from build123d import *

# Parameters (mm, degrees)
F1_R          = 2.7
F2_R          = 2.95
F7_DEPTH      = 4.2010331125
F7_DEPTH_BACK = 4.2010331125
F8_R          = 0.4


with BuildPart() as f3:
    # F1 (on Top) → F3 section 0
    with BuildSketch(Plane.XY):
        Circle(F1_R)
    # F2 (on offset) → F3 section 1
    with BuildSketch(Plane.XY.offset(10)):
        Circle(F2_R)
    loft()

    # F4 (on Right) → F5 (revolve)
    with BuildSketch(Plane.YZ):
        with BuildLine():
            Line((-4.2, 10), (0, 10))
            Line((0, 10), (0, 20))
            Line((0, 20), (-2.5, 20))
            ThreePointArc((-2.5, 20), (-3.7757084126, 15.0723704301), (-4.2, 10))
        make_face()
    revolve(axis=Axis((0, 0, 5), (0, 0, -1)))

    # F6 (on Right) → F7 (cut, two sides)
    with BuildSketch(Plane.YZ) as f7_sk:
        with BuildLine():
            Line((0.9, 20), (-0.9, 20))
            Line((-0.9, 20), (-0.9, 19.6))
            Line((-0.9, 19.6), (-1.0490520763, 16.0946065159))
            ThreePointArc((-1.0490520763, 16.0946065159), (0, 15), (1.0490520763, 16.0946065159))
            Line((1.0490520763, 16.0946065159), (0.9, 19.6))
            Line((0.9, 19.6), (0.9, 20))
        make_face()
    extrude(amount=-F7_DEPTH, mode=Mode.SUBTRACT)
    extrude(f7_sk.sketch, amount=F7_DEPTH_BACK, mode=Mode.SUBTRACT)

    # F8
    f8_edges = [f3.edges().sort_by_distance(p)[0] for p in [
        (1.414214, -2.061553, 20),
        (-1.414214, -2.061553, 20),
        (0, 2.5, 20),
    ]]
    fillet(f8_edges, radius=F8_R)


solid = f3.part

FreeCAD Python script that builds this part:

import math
import FreeCAD as App
import Part
import Sketcher


def edges_at(feature, points):
    """Names of the edges that pass closest to the given points."""
    edges = feature.Shape.Edges
    near = lambda p: min(range(len(edges)), key=lambda i: edges[i].distToShape(Part.Vertex(*p))[0])
    return sorted({f"Edge{near(p) + 1}" for p in points})

doc = App.newDocument("Part")
body = doc.addObject("PartDesign::Body", "Body")

sketch1 = body.newObject("Sketcher::SketchObject", "Sketch")
sketch1.AttachmentSupport = (doc.getObject("XY_Plane"), [""])
sketch1.MapMode = "FlatFace"
sketch1.addGeometry(Part.Circle(App.Vector(0, 0, 0), App.Vector(0, 0, 1), 2.7), False)
sketch1.addConstraint(Sketcher.Constraint("Coincident", 0, 3, -1, 1))
sketch1.addConstraint(Sketcher.Constraint("Diameter", 0, 5.4))

sketch2 = body.newObject("Sketcher::SketchObject", "Sketch001")
sketch2.AttachmentSupport = (doc.getObject("XY_Plane"), [""])
sketch2.MapMode = "FlatFace"
sketch2.AttachmentOffset = App.Placement(App.Vector(0, 0, 10), App.Rotation())
sketch2.addGeometry(Part.Circle(App.Vector(0, 0, 0), App.Vector(0, 0, 1), 3), False)
sketch2.addConstraint(Sketcher.Constraint("Coincident", 0, 3, -1, 1))
sketch2.addConstraint(Sketcher.Constraint("Diameter", 0, 5.9))

additiveloft = body.newObject("PartDesign::AdditiveLoft", "AdditiveLoft")
additiveloft.Profile = sketch1
additiveloft.Sections = [sketch2]

sketch3 = body.newObject("Sketcher::SketchObject", "Sketch002")
sketch3.AttachmentSupport = (doc.getObject("YZ_Plane"), [""])
sketch3.MapMode = "FlatFace"
sketch3.addGeometry(Part.LineSegment(App.Vector(-4.2, 10, 0), App.Vector(0, 10, 0)), False)
sketch3.addGeometry(Part.LineSegment(App.Vector(0, 10, 0), App.Vector(0, 20, 0)), False)
sketch3.addGeometry(Part.LineSegment(App.Vector(0, 20, 0), App.Vector(-2.5, 20, 0)), False)
sketch3.addGeometry(Part.ArcOfCircle(Part.Circle(App.Vector(25.8, 10, 0), App.Vector(0, 0, 1), 30), math.radians(160.62), math.radians(180.08)), False)
sketch3.addConstraint(Sketcher.Constraint("Coincident", 0, 2, 1, 1))
sketch3.addConstraint(Sketcher.Constraint("Coincident", 1, 2, 2, 1))
sketch3.addConstraint(Sketcher.Constraint("Coincident", 2, 2, 3, 1))
sketch3.addConstraint(Sketcher.Constraint("Coincident", 3, 2, 0, 1))
sketch3.addConstraint(Sketcher.Constraint("Horizontal", 0))
sketch3.addConstraint(Sketcher.Constraint("Vertical", 1))
sketch3.addConstraint(Sketcher.Constraint("Horizontal", 2))
sketch3.addConstraint(Sketcher.Constraint("PointOnObject", 0, 2, -2))
sketch3.addConstraint(Sketcher.Constraint("Radius", 3, 30.0))
sketch3.addConstraint(Sketcher.Constraint("DistanceY", 1, 1, 1, 2, 10.0))
sketch3.addConstraint(Sketcher.Constraint("DistanceX", 0, 1, 0, 2, 4.2))
sketch3.addConstraint(Sketcher.Constraint("DistanceX", 2, 2, 2, 1, 2.5))
sketch3.addConstraint(Sketcher.Constraint("DistanceY", -1, 1, 0, 2, 10.0))
revolution = body.newObject("PartDesign::Revolution", "Revolution")
revolution.Profile = sketch3
revolution.ReferenceAxis = (sketch3, ["V_Axis"])
revolution.Angle = 360

sketch4 = body.newObject("Sketcher::SketchObject", "Sketch003")
sketch4.AttachmentSupport = (doc.getObject("YZ_Plane"), [""])
sketch4.MapMode = "FlatFace"
sketch4.addGeometry(Part.LineSegment(App.Vector(0.9, 20, 0), App.Vector(-0.9, 20, 0)), False)
sketch4.addGeometry(Part.LineSegment(App.Vector(-0.9, 20, 0), App.Vector(-0.9, 19.6, 0)), False)
sketch4.addGeometry(Part.LineSegment(App.Vector(-0.9, 19.6, 0), App.Vector(-1.05, 16.09, 0)), False)
sketch4.addGeometry(Part.ArcOfCircle(Part.Circle(App.Vector(0, 16.05, 0), App.Vector(0, 0, 1), 1.05), math.radians(178), math.radians(362)), False)
sketch4.addGeometry(Part.LineSegment(App.Vector(1.05, 16.09, 0), App.Vector(0.9, 19.6, 0)), False)
sketch4.addGeometry(Part.LineSegment(App.Vector(0.9, 19.6, 0), App.Vector(0.9, 20, 0)), False)
sketch4.addConstraint(Sketcher.Constraint("Coincident", 0, 2, 1, 1))
sketch4.addConstraint(Sketcher.Constraint("Coincident", 1, 2, 2, 1))
sketch4.addConstraint(Sketcher.Constraint("Tangent", 2, 2, 3, 1))
sketch4.addConstraint(Sketcher.Constraint("Tangent", 3, 2, 4, 1))
sketch4.addConstraint(Sketcher.Constraint("Coincident", 4, 2, 5, 1))
sketch4.addConstraint(Sketcher.Constraint("Coincident", 5, 2, 0, 1))
sketch4.addConstraint(Sketcher.Constraint("Horizontal", 0))
sketch4.addConstraint(Sketcher.Constraint("Vertical", 1))
sketch4.addConstraint(Sketcher.Constraint("Vertical", 5))
sketch4.addConstraint(Sketcher.Constraint("Symmetric", 2, 2, 3, 2, -2))
sketch4.addConstraint(Sketcher.Constraint("Horizontal", 1, 2, 4, 2))
sketch4.addConstraint(Sketcher.Constraint("Radius", 3, 1.05))
sketch4.addConstraint(Sketcher.Constraint("DistanceX", 0, 2, 0, 1, 1.8))
sketch4.addConstraint(Sketcher.Constraint("DistanceY", 1, 2, 1, 1, 0.4))
sketch4.addConstraint(Sketcher.Constraint("DistanceY", -1, 1, 0, 2, 20.0))
sketch4.addConstraint(Sketcher.Constraint("DistanceY", -1, 1, 3, 3, 16.05))
pocket1 = body.newObject("PartDesign::Pocket", "Pocket")
pocket1.Profile = sketch4
pocket1.Type = "ThroughAll"
pocket1.Midplane = True
doc.recompute()

fillet = body.newObject("PartDesign::Fillet", "Fillet")
fillet.Base = (pocket1, edges_at(pocket1, [(1.414, -2.062, 20), (-1.414, -2.062, 20), (0, 2.5, 20)]))
fillet.Radius = 0.4

doc.recompute()
